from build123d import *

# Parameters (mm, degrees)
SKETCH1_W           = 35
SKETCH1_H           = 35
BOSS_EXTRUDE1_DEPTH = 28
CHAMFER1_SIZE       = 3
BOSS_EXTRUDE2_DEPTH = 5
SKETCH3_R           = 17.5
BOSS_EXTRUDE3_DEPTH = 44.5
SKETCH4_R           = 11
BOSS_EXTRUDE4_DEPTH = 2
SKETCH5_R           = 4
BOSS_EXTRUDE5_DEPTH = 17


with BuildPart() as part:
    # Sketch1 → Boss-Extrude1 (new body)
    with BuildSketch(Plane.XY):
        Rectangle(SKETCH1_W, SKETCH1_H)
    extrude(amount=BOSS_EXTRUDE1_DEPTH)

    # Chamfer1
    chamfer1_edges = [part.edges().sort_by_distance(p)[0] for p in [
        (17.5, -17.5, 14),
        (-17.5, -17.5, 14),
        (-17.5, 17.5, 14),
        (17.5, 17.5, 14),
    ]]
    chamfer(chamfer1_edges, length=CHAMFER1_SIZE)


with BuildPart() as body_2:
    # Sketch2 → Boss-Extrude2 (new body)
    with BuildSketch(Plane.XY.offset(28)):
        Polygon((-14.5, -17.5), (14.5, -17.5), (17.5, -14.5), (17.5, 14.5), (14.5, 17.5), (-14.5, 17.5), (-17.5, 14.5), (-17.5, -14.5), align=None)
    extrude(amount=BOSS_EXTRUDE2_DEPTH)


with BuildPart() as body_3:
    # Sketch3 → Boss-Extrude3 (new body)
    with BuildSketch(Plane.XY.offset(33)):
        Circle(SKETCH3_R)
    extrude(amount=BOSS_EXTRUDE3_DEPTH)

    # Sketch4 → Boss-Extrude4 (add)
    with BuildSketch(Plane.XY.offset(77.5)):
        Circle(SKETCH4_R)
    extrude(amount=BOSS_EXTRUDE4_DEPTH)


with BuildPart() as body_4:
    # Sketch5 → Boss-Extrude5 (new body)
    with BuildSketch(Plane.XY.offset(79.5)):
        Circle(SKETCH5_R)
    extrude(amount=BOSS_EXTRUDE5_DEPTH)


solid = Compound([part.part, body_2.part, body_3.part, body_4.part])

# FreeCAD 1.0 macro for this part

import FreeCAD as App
import Part
import Sketcher
from FreeCAD import Vector


def edges_at(feature, points):
    """Names of the edges that pass closest to the given points."""
    edges = feature.Shape.Edges
    near = lambda p: min(range(len(edges)), key=lambda i: edges[i].distToShape(Part.Vertex(*p))[0])
    return sorted({f"Edge{near(p) + 1}" for p in points})

doc = App.newDocument("Part")
body = doc.addObject("PartDesign::Body", "Body")

sketch1 = body.newObject("Sketcher::SketchObject", "Sketch")
sketch1.AttachmentSupport = (doc.getObject("XY_Plane"), [""])
sketch1.MapMode = "FlatFace"
sketch1.addGeometry(Part.LineSegment(Vector(-18, 18, 0), Vector(-18, -18, 0)), False)
sketch1.addGeometry(Part.LineSegment(Vector(-18, -18, 0), Vector(18, -18, 0)), False)
sketch1.addGeometry(Part.LineSegment(Vector(18, -18, 0), Vector(18, 18, 0)), False)
sketch1.addGeometry(Part.LineSegment(Vector(18, 18, 0), Vector(-18, 18, 0)), False)
sketch1.addConstraint(Sketcher.Constraint("Coincident", 0, 2, 1, 1))
sketch1.addConstraint(Sketcher.Constraint("Coincident", 1, 2, 2, 1))
sketch1.addConstraint(Sketcher.Constraint("Coincident", 2, 2, 3, 1))
sketch1.addConstraint(Sketcher.Constraint("Coincident", 3, 2, 0, 1))
sketch1.addConstraint(Sketcher.Constraint("Vertical", 0))
sketch1.addConstraint(Sketcher.Constraint("Horizontal", 1))
sketch1.addConstraint(Sketcher.Constraint("Vertical", 2))
sketch1.addConstraint(Sketcher.Constraint("Horizontal", 3))
sketch1.addConstraint(Sketcher.Constraint("Symmetric", 0, 2, 2, 2, -1, 1))
sketch1.addConstraint(Sketcher.Constraint("Equal", 3, 0))
sketch1.addConstraint(Sketcher.Constraint("DistanceX", 1, 1, 1, 2, 35.0))
pad1 = body.newObject("PartDesign::Pad", "Pad")
pad1.Profile = sketch1
pad1.Length = 28
doc.recompute()

chamfer = body.newObject("PartDesign::Chamfer", "Chamfer")
chamfer.Base = (pad1, edges_at(pad1, [
    (17.5, -17.5, 14),
    (-17.5, -17.5, 14),
    (-17.5, 17.5, 14),
    (17.5, 17.5, 14),
]))
chamfer.Size = 3
body2 = doc.addObject("PartDesign::Body", "Body001")

sketch2 = body2.newObject("Sketcher::SketchObject", "Sketch001")
sketch2.AttachmentSupport = (doc.getObject("XY_Plane001"), [""])
sketch2.MapMode = "FlatFace"
sketch2.AttachmentOffset = App.Placement(Vector(0, 0, 28), App.Rotation())
sketch2.addGeometry(Part.LineSegment(Vector(-14.5, -17.5, 0), Vector(14.5, -17.5, 0)), False)
sketch2.addGeometry(Part.LineSegment(Vector(14.5, -17.5, 0), Vector(17.5, -14.5, 0)), False)
sketch2.addGeometry(Part.LineSegment(Vector(17.5, -14.5, 0), Vector(17.5, 14.5, 0)), False)
sketch2.addGeometry(Part.LineSegment(Vector(17.5, 14.5, 0), Vector(14.5, 17.5, 0)), False)
sketch2.addGeometry(Part.LineSegment(Vector(14.5, 17.5, 0), Vector(-14.5, 17.5, 0)), False)
sketch2.addGeometry(Part.LineSegment(Vector(-14.5, 17.5, 0), Vector(-17.5, 14.5, 0)), False)
sketch2.addGeometry(Part.LineSegment(Vector(-17.5, 14.5, 0), Vector(-17.5, -14.5, 0)), False)
sketch2.addGeometry(Part.LineSegment(Vector(-17.5, -14.5, 0), Vector(-14.5, -17.5, 0)), False)
sketch2.addConstraint(Sketcher.Constraint("Coincident", 0, 2, 1, 1))
sketch2.addConstraint(Sketcher.Constraint("Coincident", 1, 2, 2, 1))
sketch2.addConstraint(Sketcher.Constraint("Coincident", 2, 2, 3, 1))
sketch2.addConstraint(Sketcher.Constraint("Coincident", 3, 2, 4, 1))
sketch2.addConstraint(Sketcher.Constraint("Coincident", 4, 2, 5, 1))
sketch2.addConstraint(Sketcher.Constraint("Coincident", 5, 2, 6, 1))
sketch2.addConstraint(Sketcher.Constraint("Coincident", 6, 2, 7, 1))
sketch2.addConstraint(Sketcher.Constraint("Coincident", 7, 2, 0, 1))
sketch2.addConstraint(Sketcher.Constraint("Horizontal", 0))
sketch2.addConstraint(Sketcher.Constraint("Vertical", 2))
sketch2.addConstraint(Sketcher.Constraint("Horizontal", 4))
sketch2.addConstraint(Sketcher.Constraint("Vertical", 6))
sketch2.addConstraint(Sketcher.Constraint("Symmetric", 0, 2, 4, 2, -1, 1))
sketch2.addConstraint(Sketcher.Constraint("Symmetric", 1, 2, 5, 2, -1, 1))
sketch2.addConstraint(Sketcher.Constraint("Perpendicular", 1, 3))
sketch2.addConstraint(Sketcher.Constraint("Perpendicular", 5, 7))
sketch2.addConstraint(Sketcher.Constraint("Horizontal", 2, 2, 5, 2))
sketch2.addConstraint(Sketcher.Constraint("Horizontal", 1, 2, 6, 2))
sketch2.addConstraint(Sketcher.Constraint("Vertical", 0, 2, 3, 2))
sketch2.addConstraint(Sketcher.Constraint("Equal", 4, 2))
sketch2.addConstraint(Sketcher.Constraint("DistanceX", 0, 1, 0, 2, 29.0))
sketch2.addConstraint(Sketcher.Constraint("DistanceX", 0, 2, 1, 2, 3.0))
pad2 = body2.newObject("PartDesign::Pad", "Pad001")
pad2.Profile = sketch2
pad2.Length = 5
body3 = doc.addObject("PartDesign::Body", "Body002")

sketch3 = body3.newObject("Sketcher::SketchObject", "Sketch002")
sketch3.AttachmentSupport = (doc.getObject("XY_Plane002"), [""])
sketch3.MapMode = "FlatFace"
sketch3.AttachmentOffset = App.Placement(Vector(0, 0, 33), App.Rotation())
sketch3.addGeometry(Part.Circle(Vector(0, 0, 0), Vector(0, 0, 1), 18), False)
sketch3.addConstraint(Sketcher.Constraint("Coincident", 0, 3, -1, 1))
sketch3.addConstraint(Sketcher.Constraint("Diameter", 0, 35.0))
pad3 = body3.newObject("PartDesign::Pad", "Pad002")
pad3.Profile = sketch3
pad3.Length = 44.5

sketch4 = body3.newObject("Sketcher::SketchObject", "Sketch003")
sketch4.AttachmentSupport = (doc.getObject("XY_Plane002"), [""])
sketch4.MapMode = "FlatFace"
sketch4.AttachmentOffset = App.Placement(Vector(0, 0, 77.5), App.Rotation())
sketch4.addGeometry(Part.Circle(Vector(0, 0, 0), Vector(0, 0, 1), 11), False)
sketch4.addConstraint(Sketcher.Constraint("Coincident", 0, 3, -1, 1))
sketch4.addConstraint(Sketcher.Constraint("Diameter", 0, 22.0))
pad4 = body3.newObject("PartDesign::Pad", "Pad003")
pad4.Profile = sketch4
pad4.Length = 2
body4 = doc.addObject("PartDesign::Body", "Body003")

sketch5 = body4.newObject("Sketcher::SketchObject", "Sketch004")
sketch5.AttachmentSupport = (doc.getObject("XY_Plane003"), [""])
sketch5.MapMode = "FlatFace"
sketch5.AttachmentOffset = App.Placement(Vector(0, 0, 79.5), App.Rotation())
sketch5.addGeometry(Part.Circle(Vector(0, 0, 0), Vector(0, 0, 1), 4), False)
sketch5.addConstraint(Sketcher.Constraint("Coincident", 0, 3, -1, 1))
sketch5.addConstraint(Sketcher.Constraint("Diameter", 0, 8.0))
pad5 = body4.newObject("PartDesign::Pad", "Pad004")
pad5.Profile = sketch5
pad5.Length = 17

doc.recompute()
